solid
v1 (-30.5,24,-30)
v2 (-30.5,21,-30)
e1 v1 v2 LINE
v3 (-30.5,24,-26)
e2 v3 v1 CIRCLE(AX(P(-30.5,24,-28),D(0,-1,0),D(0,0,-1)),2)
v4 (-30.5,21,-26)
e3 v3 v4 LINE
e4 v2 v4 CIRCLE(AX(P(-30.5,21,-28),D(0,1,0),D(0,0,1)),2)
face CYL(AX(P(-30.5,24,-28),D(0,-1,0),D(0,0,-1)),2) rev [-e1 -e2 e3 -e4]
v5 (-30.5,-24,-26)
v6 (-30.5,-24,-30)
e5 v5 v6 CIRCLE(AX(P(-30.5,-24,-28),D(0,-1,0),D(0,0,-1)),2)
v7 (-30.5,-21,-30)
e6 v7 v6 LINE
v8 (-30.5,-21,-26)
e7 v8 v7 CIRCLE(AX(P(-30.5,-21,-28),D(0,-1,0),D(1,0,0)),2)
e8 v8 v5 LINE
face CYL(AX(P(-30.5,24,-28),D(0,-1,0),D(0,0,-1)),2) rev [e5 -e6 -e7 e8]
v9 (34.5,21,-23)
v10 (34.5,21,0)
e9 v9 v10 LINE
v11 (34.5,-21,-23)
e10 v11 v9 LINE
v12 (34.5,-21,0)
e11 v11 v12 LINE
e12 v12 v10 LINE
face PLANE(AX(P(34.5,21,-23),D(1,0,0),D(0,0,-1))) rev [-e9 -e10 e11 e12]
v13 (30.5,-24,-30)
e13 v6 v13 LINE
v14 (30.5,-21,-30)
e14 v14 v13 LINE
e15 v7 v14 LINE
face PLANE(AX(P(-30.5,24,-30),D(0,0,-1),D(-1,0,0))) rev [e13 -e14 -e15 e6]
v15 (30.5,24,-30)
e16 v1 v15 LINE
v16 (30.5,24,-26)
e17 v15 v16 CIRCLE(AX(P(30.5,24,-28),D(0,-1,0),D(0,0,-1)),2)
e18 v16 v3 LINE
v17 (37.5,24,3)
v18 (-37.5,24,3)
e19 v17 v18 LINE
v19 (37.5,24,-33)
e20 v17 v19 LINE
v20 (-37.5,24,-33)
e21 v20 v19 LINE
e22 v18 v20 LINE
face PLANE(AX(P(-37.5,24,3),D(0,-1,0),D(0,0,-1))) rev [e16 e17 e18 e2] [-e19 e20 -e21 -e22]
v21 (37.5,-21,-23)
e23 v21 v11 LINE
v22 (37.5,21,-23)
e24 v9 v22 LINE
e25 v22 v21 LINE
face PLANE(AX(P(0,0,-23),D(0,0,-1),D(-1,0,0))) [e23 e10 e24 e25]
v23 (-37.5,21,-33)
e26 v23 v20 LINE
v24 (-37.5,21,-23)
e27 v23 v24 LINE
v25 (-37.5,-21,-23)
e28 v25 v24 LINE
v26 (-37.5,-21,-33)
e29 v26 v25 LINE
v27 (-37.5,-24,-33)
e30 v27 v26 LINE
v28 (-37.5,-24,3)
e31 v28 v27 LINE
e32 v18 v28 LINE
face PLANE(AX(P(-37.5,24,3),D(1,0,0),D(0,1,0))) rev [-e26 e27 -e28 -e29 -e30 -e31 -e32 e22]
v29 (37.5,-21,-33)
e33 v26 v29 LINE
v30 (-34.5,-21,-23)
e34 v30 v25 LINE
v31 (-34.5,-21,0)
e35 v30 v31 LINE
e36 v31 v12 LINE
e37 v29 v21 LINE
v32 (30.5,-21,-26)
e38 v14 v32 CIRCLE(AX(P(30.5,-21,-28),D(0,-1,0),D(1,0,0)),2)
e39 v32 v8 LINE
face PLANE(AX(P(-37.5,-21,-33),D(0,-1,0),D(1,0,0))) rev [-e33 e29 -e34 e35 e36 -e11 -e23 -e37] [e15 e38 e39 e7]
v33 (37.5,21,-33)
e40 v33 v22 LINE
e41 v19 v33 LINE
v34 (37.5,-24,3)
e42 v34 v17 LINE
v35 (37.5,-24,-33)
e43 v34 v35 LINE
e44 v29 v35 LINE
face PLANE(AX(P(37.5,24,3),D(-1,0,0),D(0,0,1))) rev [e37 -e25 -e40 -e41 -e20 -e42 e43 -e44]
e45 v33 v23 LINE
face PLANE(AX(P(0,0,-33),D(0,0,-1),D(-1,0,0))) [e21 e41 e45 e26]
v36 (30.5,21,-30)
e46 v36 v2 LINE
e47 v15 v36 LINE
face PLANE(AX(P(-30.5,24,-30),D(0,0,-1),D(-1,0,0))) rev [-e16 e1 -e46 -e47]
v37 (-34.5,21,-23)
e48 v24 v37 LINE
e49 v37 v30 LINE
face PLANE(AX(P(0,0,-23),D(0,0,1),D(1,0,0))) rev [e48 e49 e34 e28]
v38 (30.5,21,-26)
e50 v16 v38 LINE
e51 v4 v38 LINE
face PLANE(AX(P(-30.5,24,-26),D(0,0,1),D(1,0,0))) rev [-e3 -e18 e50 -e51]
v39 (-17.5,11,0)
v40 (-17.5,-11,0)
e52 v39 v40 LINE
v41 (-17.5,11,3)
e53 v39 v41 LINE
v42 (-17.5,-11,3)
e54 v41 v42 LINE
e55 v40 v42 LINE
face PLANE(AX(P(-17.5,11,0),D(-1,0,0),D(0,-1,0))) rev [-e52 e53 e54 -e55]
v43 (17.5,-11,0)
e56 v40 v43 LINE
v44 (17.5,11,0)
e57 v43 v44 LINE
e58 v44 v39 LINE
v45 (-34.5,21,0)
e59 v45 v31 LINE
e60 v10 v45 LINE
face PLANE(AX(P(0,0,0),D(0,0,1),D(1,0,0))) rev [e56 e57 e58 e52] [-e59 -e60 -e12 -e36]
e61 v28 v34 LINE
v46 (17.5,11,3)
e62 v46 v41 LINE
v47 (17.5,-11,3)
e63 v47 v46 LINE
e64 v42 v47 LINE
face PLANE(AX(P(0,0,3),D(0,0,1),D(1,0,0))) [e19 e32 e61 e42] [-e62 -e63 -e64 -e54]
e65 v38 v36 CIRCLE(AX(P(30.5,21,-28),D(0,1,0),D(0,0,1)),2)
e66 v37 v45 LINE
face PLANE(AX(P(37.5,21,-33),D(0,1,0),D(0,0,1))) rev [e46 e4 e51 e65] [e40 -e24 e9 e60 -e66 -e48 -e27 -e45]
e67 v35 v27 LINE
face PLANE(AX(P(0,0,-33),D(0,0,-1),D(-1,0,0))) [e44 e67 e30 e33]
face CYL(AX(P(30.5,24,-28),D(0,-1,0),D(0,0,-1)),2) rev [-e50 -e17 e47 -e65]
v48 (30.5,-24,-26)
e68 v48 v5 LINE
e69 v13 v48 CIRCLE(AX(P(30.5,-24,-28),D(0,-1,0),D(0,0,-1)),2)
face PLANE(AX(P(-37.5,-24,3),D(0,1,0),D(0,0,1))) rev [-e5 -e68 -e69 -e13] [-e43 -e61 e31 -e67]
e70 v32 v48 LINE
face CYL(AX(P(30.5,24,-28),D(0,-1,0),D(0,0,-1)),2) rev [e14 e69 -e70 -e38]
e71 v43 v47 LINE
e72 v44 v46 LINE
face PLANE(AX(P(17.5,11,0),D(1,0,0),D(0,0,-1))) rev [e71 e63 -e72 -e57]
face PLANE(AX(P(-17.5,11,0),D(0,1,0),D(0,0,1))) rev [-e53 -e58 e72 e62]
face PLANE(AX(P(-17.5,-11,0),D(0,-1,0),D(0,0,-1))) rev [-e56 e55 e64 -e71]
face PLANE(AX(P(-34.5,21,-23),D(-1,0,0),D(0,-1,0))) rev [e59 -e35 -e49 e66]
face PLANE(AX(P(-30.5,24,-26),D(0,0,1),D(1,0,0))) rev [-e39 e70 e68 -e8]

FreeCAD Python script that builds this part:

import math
import FreeCAD as App
import Part
import Sketcher
Q = App.Units.Quantity


def add_polygon(sketch, points):
    """Adds a closed chain of lines whose ends are joined by coincident constraints."""
    first, n = sketch.GeometryCount, len(points)
    for a, b in zip(points, points[1:] + points[:1]):
        sketch.addGeometry(Part.LineSegment(App.Vector(*a, 0), App.Vector(*b, 0)), False)
    for i in range(n):
        sketch.addConstraint(Sketcher.Constraint("Coincident", first + i, 2, first + (i + 1) % n, 1))

doc = App.newDocument("Part")
body = doc.addObject("PartDesign::Body", "Body")

# Sketch on XY plane
sketch1 = body.newObject("Sketcher::SketchObject", "Sketch")
sketch1.AttachmentSupport = (doc.getObject("XY_Plane"), [""])
sketch1.MapMode = "FlatFace"
add_polygon(sketch1, [(-38, 24), (-38, -24), (38, -24), (38, 24)])  # lines 0-3
sketch1.addConstraint(Sketcher.Constraint("Vertical", 0))
sketch1.addConstraint(Sketcher.Constraint("Horizontal", 1))
sketch1.addConstraint(Sketcher.Constraint("Vertical", 2))
sketch1.addConstraint(Sketcher.Constraint("Horizontal", 3))
sketch1.addConstraint(Sketcher.Constraint("Symmetric", 0, 2, 2, 2, -1, 1))
sketch1.addConstraint(Sketcher.Constraint("DistanceX", 1, 1, 1, 2, Q("75 mm")))
sketch1.addConstraint(Sketcher.Constraint("DistanceY", 0, 2, 0, 1, Q("48 mm")))
pad1 = body.newObject("PartDesign::Pad", "Pad")
pad1.Profile = sketch1
pad1.Length = 3

# Sketch on XY plane
sketch2 = body.newObject("Sketcher::SketchObject", "Sketch001")
sketch2.AttachmentSupport = (doc.getObject("XY_Plane"), [""])
sketch2.MapMode = "FlatFace"
sketch2.AttachmentOffset = App.Placement(App.Vector(0, 0, 3), App.Rotation())
add_polygon(sketch2, [(-18, 11), (-18, -11), (18, -11), (18, 11)])  # lines 0-3
sketch2.addConstraint(Sketcher.Constraint("Vertical", 0))
sketch2.addConstraint(Sketcher.Constraint("Horizontal", 1))
sketch2.addConstraint(Sketcher.Constraint("Vertical", 2))
sketch2.addConstraint(Sketcher.Constraint("Horizontal", 3))
sketch2.addConstraint(Sketcher.Constraint("Symmetric", 0, 2, 2, 2, -1, 1))
sketch2.addConstraint(Sketcher.Constraint("DistanceX", 1, 1, 1, 2, Q("35 mm")))
sketch2.addConstraint(Sketcher.Constraint("DistanceY", 0, 2, 0, 1, Q("22 mm")))
pocket1 = body.newObject("PartDesign::Pocket", "Pocket")
pocket1.Profile = sketch2
pocket1.Length = 3

# Sketch on XY plane
sketch3 = body.newObject("Sketcher::SketchObject", "Sketch002")
sketch3.AttachmentSupport = (doc.getObject("XY_Plane"), [""])
sketch3.MapMode = "FlatFace"
add_polygon(sketch3, [(37.5, 24), (37.5, 21), (-37.5, 21), (-37.5, 24)])  # lines 0-3
add_polygon(sketch3, [(37.5, -21), (37.5, -24), (-37.5, -24), (-37.5, -21)])  # lines 4-7
sketch3.addConstraint(Sketcher.Constraint("Vertical", 0))
sketch3.addConstraint(Sketcher.Constraint("Horizontal", 1))
sketch3.addConstraint(Sketcher.Constraint("Vertical", 2))
sketch3.addConstraint(Sketcher.Constraint("Horizontal", 3))
sketch3.addConstraint(Sketcher.Constraint("Vertical", 4))
sketch3.addConstraint(Sketcher.Constraint("Horizontal", 5))
sketch3.addConstraint(Sketcher.Constraint("Vertical", 6))
sketch3.addConstraint(Sketcher.Constraint("Horizontal", 7))
sketch3.addConstraint(Sketcher.Constraint("Symmetric", 2, 2, 4, 2, -1, 1))
sketch3.addConstraint(Sketcher.Constraint("Symmetric", 0, 2, 6, 2, -1, 1))
sketch3.addConstraint(Sketcher.Constraint("Vertical", 3, 2, 4, 2))
sketch3.addConstraint(Sketcher.Constraint("DistanceX", 1, 2, 1, 1, Q("75 mm")))
sketch3.addConstraint(Sketcher.Constraint("DistanceY", 0, 2, 0, 1, Q("3 mm")))
sketch3.addConstraint(Sketcher.Constraint("DistanceY", -1, 1, 0, 2, Q("21 mm")))
pad2 = body.newObject("PartDesign::Pad", "Pad001")
pad2.Profile = sketch3
pad2.Length = 33
pad2.Reversed = True

# Sketch on XY plane
sketch4 = body.newObject("Sketcher::SketchObject", "Sketch003")
sketch4.AttachmentSupport = (doc.getObject("XY_Plane"), [""])
sketch4.MapMode = "FlatFace"
add_polygon(sketch4, [(37.5, 21), (37.5, -21), (34.5, -21), (34.5, 21)])  # lines 0-3
add_polygon(sketch4, [(-34.5, 21), (-34.5, -21), (-37.5, -21), (-37.5, 21)])  # lines 4-7
sketch4.addConstraint(Sketcher.Constraint("Vertical", 0))
sketch4.addConstraint(Sketcher.Constraint("Horizontal", 1))
sketch4.addConstraint(Sketcher.Constraint("Vertical", 2))
sketch4.addConstraint(Sketcher.Constraint("Horizontal", 3))
sketch4.addConstraint(Sketcher.Constraint("Vertical", 4))
sketch4.addConstraint(Sketcher.Constraint("Horizontal", 5))
sketch4.addConstraint(Sketcher.Constraint("Vertical", 6))
sketch4.addConstraint(Sketcher.Constraint("Horizontal", 7))
sketch4.addConstraint(Sketcher.Constraint("Symmetric", 2, 2, 4, 2, -1, 1))
sketch4.addConstraint(Sketcher.Constraint("Symmetric", 0, 2, 6, 2, -1, 1))
sketch4.addConstraint(Sketcher.Constraint("Horizontal", 1, 2, 4, 2))
sketch4.addConstraint(Sketcher.Constraint("DistanceX", 1, 2, 1, 1, Q("3 mm")))
sketch4.addConstraint(Sketcher.Constraint("DistanceY", 0, 2, 0, 1, Q("42 mm")))
sketch4.addConstraint(Sketcher.Constraint("DistanceX", 4, 2, 1, 2, Q("69 mm")))
pad3 = body.newObject("PartDesign::Pad", "Pad002")
pad3.Profile = sketch4
pad3.Length = 23
pad3.Reversed = True

# Sketch on XZ plane
sketch5 = body.newObject("Sketcher::SketchObject", "Sketch004")
sketch5.AttachmentSupport = (doc.getObject("XZ_Plane"), [""])
sketch5.MapMode = "FlatFace"
sketch5.AttachmentOffset = App.Placement(App.Vector(0, 0, 24), App.Rotation())
sketch5.addGeometry(Part.LineSegment(App.Vector(30.5, -26, 0), App.Vector(-30.5, -26, 0)), False)
sketch5.addGeometry(Part.ArcOfCircle(Part.Circle(App.Vector(-30.5, -28, 0), App.Vector(0, 0, 1), 2), math.radians(90), math.radians(270)), False)
sketch5.addGeometry(Part.LineSegment(App.Vector(-30.5, -30, 0), App.Vector(30.5, -30, 0)), False)
sketch5.addGeometry(Part.ArcOfCircle(Part.Circle(App.Vector(30.5, -28, 0), App.Vector(0, 0, 1), 2), math.radians(-90), math.radians(90)), False)
sketch5.addConstraint(Sketcher.Constraint("Tangent", 0, 2, 1, 1))
sketch5.addConstraint(Sketcher.Constraint("Tangent", 1, 2, 2, 1))
sketch5.addConstraint(Sketcher.Constraint("Tangent", 2, 2, 3, 1))
sketch5.addConstraint(Sketcher.Constraint("Tangent", 3, 2, 0, 1))
sketch5.addConstraint(Sketcher.Constraint("Horizontal", 0))
sketch5.addConstraint(Sketcher.Constraint("Horizontal", 2))
sketch5.addConstraint(Sketcher.Constraint("Radius", 1, Q("2 mm")))
sketch5.addConstraint(Sketcher.Constraint("DistanceX", 0, 2, 0, 1, Q("61 mm")))
sketch5.addConstraint(Sketcher.Constraint("DistanceY", 1, 3, -1, 1, Q("28 mm")))
sketch5.addConstraint(Sketcher.Constraint("DistanceX", 1, 3, -1, 1, Q("30.5 mm")))
pocket2 = body.newObject("PartDesign::Pocket", "Pocket001")
pocket2.Profile = sketch5
pocket2.Type = "ThroughAll"

doc.recompute()
